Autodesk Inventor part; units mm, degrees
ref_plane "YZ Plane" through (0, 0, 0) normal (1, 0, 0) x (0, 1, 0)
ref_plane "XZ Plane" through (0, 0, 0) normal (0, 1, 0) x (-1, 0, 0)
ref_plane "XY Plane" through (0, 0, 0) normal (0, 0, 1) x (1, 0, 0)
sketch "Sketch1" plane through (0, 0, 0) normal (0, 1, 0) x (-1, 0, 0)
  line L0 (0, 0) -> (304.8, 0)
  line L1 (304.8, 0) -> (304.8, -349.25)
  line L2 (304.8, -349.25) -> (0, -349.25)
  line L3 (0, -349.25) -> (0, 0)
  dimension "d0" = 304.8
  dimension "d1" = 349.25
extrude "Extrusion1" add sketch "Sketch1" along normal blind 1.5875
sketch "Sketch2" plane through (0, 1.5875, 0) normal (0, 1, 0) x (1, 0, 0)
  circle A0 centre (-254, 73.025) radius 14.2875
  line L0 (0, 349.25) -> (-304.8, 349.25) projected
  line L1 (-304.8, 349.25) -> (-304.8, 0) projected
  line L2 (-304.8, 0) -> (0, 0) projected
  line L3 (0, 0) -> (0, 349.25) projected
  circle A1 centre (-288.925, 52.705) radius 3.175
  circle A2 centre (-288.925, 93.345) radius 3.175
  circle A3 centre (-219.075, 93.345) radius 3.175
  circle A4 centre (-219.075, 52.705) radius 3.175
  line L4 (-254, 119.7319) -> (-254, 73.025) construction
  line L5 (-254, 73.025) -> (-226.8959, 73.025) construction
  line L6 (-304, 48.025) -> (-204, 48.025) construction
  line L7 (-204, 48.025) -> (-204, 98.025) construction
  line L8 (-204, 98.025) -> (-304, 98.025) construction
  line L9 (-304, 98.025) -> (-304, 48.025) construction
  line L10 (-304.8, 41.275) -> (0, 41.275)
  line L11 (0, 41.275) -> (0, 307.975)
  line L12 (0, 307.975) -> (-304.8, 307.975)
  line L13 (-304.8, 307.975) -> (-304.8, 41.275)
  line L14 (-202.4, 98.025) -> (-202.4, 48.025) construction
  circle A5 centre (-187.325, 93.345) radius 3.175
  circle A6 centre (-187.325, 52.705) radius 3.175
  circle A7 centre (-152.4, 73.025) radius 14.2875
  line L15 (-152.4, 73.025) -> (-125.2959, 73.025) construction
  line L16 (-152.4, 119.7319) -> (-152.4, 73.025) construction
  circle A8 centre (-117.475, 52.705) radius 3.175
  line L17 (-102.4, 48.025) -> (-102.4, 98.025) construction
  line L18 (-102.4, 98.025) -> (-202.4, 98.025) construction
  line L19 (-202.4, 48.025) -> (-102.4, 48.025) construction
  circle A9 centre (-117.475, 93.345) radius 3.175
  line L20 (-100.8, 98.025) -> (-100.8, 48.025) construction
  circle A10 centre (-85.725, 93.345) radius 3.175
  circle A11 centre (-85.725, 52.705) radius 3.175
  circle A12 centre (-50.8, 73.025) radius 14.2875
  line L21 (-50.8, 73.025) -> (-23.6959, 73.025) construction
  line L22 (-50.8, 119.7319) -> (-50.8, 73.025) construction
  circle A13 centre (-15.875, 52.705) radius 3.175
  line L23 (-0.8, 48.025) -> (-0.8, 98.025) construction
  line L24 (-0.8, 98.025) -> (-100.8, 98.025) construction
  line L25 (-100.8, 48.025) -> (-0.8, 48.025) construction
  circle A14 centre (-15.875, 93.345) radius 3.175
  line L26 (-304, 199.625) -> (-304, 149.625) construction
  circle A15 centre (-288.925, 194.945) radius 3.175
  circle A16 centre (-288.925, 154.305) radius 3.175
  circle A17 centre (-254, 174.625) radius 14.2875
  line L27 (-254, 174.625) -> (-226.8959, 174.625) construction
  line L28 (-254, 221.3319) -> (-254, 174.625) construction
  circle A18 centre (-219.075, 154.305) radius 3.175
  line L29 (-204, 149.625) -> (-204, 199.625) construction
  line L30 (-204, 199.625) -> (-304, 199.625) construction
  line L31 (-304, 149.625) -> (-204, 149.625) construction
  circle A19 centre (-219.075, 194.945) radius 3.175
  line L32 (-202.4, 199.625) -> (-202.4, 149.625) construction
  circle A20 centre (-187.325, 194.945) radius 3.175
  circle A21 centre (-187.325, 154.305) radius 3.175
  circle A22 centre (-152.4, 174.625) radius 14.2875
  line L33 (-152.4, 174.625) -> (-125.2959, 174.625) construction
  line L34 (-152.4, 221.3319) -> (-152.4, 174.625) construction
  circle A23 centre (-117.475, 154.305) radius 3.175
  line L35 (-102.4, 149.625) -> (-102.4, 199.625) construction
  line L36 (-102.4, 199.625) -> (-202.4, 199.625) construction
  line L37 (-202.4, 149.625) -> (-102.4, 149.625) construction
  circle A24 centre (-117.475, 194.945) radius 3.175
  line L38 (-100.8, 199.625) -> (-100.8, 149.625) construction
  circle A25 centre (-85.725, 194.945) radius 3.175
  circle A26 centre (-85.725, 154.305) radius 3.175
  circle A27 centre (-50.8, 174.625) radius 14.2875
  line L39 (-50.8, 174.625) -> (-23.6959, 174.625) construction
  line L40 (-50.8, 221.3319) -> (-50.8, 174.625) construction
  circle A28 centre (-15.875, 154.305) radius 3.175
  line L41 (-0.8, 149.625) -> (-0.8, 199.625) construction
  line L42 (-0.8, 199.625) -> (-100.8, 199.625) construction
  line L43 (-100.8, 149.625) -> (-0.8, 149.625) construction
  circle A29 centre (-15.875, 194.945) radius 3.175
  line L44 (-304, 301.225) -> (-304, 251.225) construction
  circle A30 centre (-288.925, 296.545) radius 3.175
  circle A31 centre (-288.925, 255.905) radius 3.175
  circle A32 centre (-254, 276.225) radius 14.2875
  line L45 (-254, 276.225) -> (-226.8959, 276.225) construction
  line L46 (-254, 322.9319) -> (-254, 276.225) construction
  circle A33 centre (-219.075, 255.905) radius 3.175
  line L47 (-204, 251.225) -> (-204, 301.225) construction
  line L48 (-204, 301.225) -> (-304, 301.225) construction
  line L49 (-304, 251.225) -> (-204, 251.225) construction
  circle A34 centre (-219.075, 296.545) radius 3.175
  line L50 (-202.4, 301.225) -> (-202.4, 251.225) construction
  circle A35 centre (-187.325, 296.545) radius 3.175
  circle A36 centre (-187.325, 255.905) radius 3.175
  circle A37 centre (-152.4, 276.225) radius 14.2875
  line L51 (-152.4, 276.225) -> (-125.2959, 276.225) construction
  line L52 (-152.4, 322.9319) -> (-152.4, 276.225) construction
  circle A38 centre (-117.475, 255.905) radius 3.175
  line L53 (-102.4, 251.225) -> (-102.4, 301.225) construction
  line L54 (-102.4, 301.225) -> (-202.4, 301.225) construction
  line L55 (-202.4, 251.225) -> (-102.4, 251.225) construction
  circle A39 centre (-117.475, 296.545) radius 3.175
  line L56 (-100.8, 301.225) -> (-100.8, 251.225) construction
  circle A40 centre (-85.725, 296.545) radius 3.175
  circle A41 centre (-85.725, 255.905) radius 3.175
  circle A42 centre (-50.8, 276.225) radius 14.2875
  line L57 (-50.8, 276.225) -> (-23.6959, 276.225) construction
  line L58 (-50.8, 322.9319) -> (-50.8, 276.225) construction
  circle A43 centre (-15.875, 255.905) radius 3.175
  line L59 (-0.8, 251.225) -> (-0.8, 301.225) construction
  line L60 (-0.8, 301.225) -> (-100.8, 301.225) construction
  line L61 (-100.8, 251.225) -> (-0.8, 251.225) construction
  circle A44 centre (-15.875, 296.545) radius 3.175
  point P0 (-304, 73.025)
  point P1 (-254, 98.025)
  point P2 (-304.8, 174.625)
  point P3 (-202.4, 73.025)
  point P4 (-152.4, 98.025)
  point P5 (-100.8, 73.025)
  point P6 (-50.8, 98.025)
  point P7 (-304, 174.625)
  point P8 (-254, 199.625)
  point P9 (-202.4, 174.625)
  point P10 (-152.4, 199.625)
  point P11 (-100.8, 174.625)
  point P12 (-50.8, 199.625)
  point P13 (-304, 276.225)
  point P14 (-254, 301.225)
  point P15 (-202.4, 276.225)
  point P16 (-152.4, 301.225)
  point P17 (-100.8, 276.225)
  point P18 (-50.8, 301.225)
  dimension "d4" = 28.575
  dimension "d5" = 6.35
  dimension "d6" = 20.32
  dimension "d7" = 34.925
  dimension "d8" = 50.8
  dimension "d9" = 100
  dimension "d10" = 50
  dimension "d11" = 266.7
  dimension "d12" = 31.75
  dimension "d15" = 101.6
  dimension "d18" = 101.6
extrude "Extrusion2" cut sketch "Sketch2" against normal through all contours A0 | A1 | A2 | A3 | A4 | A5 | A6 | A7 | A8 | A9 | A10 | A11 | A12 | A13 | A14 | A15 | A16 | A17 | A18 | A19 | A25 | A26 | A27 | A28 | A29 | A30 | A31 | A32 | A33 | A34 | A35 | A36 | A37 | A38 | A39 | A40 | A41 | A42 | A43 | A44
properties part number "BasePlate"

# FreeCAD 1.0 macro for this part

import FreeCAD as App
import Part
import Sketcher
from FreeCAD import Vector
Q = App.Units.Quantity


def add_polygon(sketch, points):
    """Adds a closed chain of lines whose ends are joined by coincident constraints."""
    first, n = sketch.GeometryCount, len(points)
    for a, b in zip(points, points[1:] + points[:1]):
        sketch.addGeometry(Part.LineSegment(App.Vector(*a, 0), App.Vector(*b, 0)), False)
    for i in range(n):
        sketch.addConstraint(Sketcher.Constraint("Coincident", first + i, 2, first + (i + 1) % n, 1))

doc = App.newDocument("Part")
params = doc.addObject("Spreadsheet::Sheet", "Params")
for row, (alias, value) in enumerate([
    ("sketch1_width", "12 in"),
    ("sketch1_height", "13.75 in"),
    ("pad1_length", "0.0625 in"),
    ("sketch2_diameter", "0.25 in"),
    ("sketch2_diameter2", "1.125 in"),
], start=1):
    params.set(f"A{row}", alias)
    params.set(f"B{row}", "=" + value)
    params.setAlias(f"B{row}", alias)

body = doc.addObject("PartDesign::Body", "Body")

# Sketch on XZ plane
sketch1 = body.newObject("Sketcher::SketchObject", "Sketch")
sketch1.AttachmentSupport = (doc.getObject("XZ_Plane"), [""])
sketch1.MapMode = "FlatFace"
add_polygon(sketch1, [(-305, 0), (0, 0), (0, -349), (-305, -349)])  # lines 0-3
sketch1.addConstraint([
    Sketcher.Constraint("Horizontal", 0),
    Sketcher.Constraint("Vertical", 1),
    Sketcher.Constraint("Horizontal", 2),
    Sketcher.Constraint("Vertical", 3),
    Sketcher.Constraint("Coincident", 0, 2, -1, 1),
    Sketcher.Constraint("DistanceX", 0, 1, 0, 2, Q("12 in")),
    Sketcher.Constraint("DistanceY", 1, 2, 1, 1, Q("13.75 in")),
])
sketch1.setExpression("Constraints[9]", "Params.sketch1_width")
sketch1.setExpression("Constraints[10]", "Params.sketch1_height")
pad1 = body.newObject("PartDesign::Pad", "Pad")
pad1.Profile = sketch1
pad1.setExpression("Length", "Params.pad1_length")
pad1.Reversed = True

# Sketch on XZ plane
sketch2 = body.newObject("Sketcher::SketchObject", "Sketch001")
sketch2.AttachmentSupport = (doc.getObject("XZ_Plane"), [""])
sketch2.MapMode = "FlatFace"
sketch2.AttachmentOffset = App.Placement(Vector(0, 0, -0.0625 * 25.4), App.Rotation())
sketch2.addGeometry([
    Part.Circle(Vector(-254, -73, 0), Vector(0, 0, 1), 14.3),  # 0
    Part.Circle(Vector(-288.9, -52.7, 0), Vector(0, 0, 1), 3.2),  # 1
    Part.Circle(Vector(-288.9, -93.3, 0), Vector(0, 0, 1), 3.2),  # 2
    Part.Circle(Vector(-219.1, -93.3, 0), Vector(0, 0, 1), 3.2),  # 3
    Part.Circle(Vector(-219.1, -52.7, 0), Vector(0, 0, 1), 3.2),  # 4
    Part.Circle(Vector(-187.3, -93.3, 0), Vector(0, 0, 1), 3.2),  # 5
    Part.Circle(Vector(-187.3, -52.7, 0), Vector(0, 0, 1), 3.2),  # 6
    Part.Circle(Vector(-152.4, -73, 0), Vector(0, 0, 1), 14.3),  # 7
    Part.Circle(Vector(-117.5, -52.7, 0), Vector(0, 0, 1), 3.2),  # 8
    Part.Circle(Vector(-117.5, -93.3, 0), Vector(0, 0, 1), 3.2),  # 9
    Part.Circle(Vector(-85.7, -93.3, 0), Vector(0, 0, 1), 3.2),  # 10
    Part.Circle(Vector(-85.7, -52.7, 0), Vector(0, 0, 1), 3.2),  # 11
    Part.Circle(Vector(-50.8, -73, 0), Vector(0, 0, 1), 14.3),  # 12
    Part.Circle(Vector(-15.9, -52.7, 0), Vector(0, 0, 1), 3.2),  # 13
    Part.Circle(Vector(-15.9, -93.3, 0), Vector(0, 0, 1), 3.2),  # 14
    Part.Circle(Vector(-288.9, -194.9, 0), Vector(0, 0, 1), 3.2),  # 15
    Part.Circle(Vector(-288.9, -154.3, 0), Vector(0, 0, 1), 3.2),  # 16
    Part.Circle(Vector(-254, -174.6, 0), Vector(0, 0, 1), 14.3),  # 17
    Part.Circle(Vector(-219.1, -154.3, 0), Vector(0, 0, 1), 3.2),  # 18
    Part.Circle(Vector(-219.1, -194.9, 0), Vector(0, 0, 1), 3.2),  # 19
    Part.Circle(Vector(-85.7, -194.9, 0), Vector(0, 0, 1), 3.2),  # 20
    Part.Circle(Vector(-85.7, -154.3, 0), Vector(0, 0, 1), 3.2),  # 21
    Part.Circle(Vector(-50.8, -174.6, 0), Vector(0, 0, 1), 14.3),  # 22
    Part.Circle(Vector(-15.9, -154.3, 0), Vector(0, 0, 1), 3.2),  # 23
    Part.Circle(Vector(-15.9, -194.9, 0), Vector(0, 0, 1), 3.2),  # 24
    Part.Circle(Vector(-288.9, -296.5, 0), Vector(0, 0, 1), 3.2),  # 25
    Part.Circle(Vector(-288.9, -255.9, 0), Vector(0, 0, 1), 3.2),  # 26
    Part.Circle(Vector(-254, -276.2, 0), Vector(0, 0, 1), 14.3),  # 27
    Part.Circle(Vector(-219.1, -255.9, 0), Vector(0, 0, 1), 3.2),  # 28
    Part.Circle(Vector(-219.1, -296.5, 0), Vector(0, 0, 1), 3.2),  # 29
    Part.Circle(Vector(-187.3, -296.5, 0), Vector(0, 0, 1), 3.2),  # 30
    Part.Circle(Vector(-187.3, -255.9, 0), Vector(0, 0, 1), 3.2),  # 31
    Part.Circle(Vector(-152.4, -276.2, 0), Vector(0, 0, 1), 14.3),  # 32
    Part.Circle(Vector(-117.5, -255.9, 0), Vector(0, 0, 1), 3.2),  # 33
    Part.Circle(Vector(-117.5, -296.5, 0), Vector(0, 0, 1), 3.2),  # 34
    Part.Circle(Vector(-85.7, -296.5, 0), Vector(0, 0, 1), 3.2),  # 35
    Part.Circle(Vector(-85.7, -255.9, 0), Vector(0, 0, 1), 3.2),  # 36
    Part.Circle(Vector(-50.8, -276.2, 0), Vector(0, 0, 1), 14.3),  # 37
    Part.Circle(Vector(-15.9, -255.9, 0), Vector(0, 0, 1), 3.2),  # 38
    Part.Circle(Vector(-15.9, -296.5, 0), Vector(0, 0, 1), 3.2),  # 39
], False)
sketch2.addConstraint([
    Sketcher.Constraint("Equal", 1, 2),
    Sketcher.Constraint("Equal", 2, 3),
    Sketcher.Constraint("Equal", 3, 4),
    Sketcher.Constraint("Equal", 4, 5),
    Sketcher.Constraint("Equal", 5, 6),
    Sketcher.Constraint("Equal", 0, 7),
    Sketcher.Constraint("Equal", 6, 8),
    Sketcher.Constraint("Equal", 8, 9),
    Sketcher.Constraint("Equal", 9, 10),
    Sketcher.Constraint("Equal", 10, 11),
    Sketcher.Constraint("Equal", 7, 12),
    Sketcher.Constraint("Equal", 11, 13),
    Sketcher.Constraint("Equal", 13, 14),
    Sketcher.Constraint("Equal", 14, 15),
    Sketcher.Constraint("Equal", 15, 16),
    Sketcher.Constraint("Equal", 12, 17),
    Sketcher.Constraint("Equal", 16, 18),
    Sketcher.Constraint("Equal", 18, 19),
    Sketcher.Constraint("Equal", 19, 20),
    Sketcher.Constraint("Equal", 20, 21),
    Sketcher.Constraint("Equal", 17, 22),
    Sketcher.Constraint("Equal", 21, 23),
    Sketcher.Constraint("Equal", 23, 24),
    Sketcher.Constraint("Equal", 24, 25),
    Sketcher.Constraint("Equal", 25, 26),
    Sketcher.Constraint("Equal", 22, 27),
    Sketcher.Constraint("Equal", 26, 28),
    Sketcher.Constraint("Equal", 28, 29),
    Sketcher.Constraint("Equal", 29, 30),
    Sketcher.Constraint("Equal", 30, 31),
    Sketcher.Constraint("Equal", 27, 32),
    Sketcher.Constraint("Equal", 31, 33),
    Sketcher.Constraint("Equal", 33, 34),
    Sketcher.Constraint("Equal", 34, 35),
    Sketcher.Constraint("Equal", 35, 36),
    Sketcher.Constraint("Equal", 32, 37),
    Sketcher.Constraint("Equal", 36, 38),
    Sketcher.Constraint("Equal", 38, 39),
    Sketcher.Constraint("Horizontal", 2, 3, 3, 3),
    Sketcher.Constraint("Horizontal", 1, 3, 4, 3),
    Sketcher.Constraint("Horizontal", 3, 3, 5, 3),
    Sketcher.Constraint("Horizontal", 4, 3, 6, 3),
    Sketcher.Constraint("Horizontal", 0, 3, 7, 3),
    Sketcher.Constraint("Horizontal", 6, 3, 8, 3),
    Sketcher.Constraint("Horizontal", 5, 3, 9, 3),
    Sketcher.Constraint("Horizontal", 9, 3, 10, 3),
    Sketcher.Constraint("Horizontal", 8, 3, 11, 3),
    Sketcher.Constraint("Horizontal", 7, 3, 12, 3),
    Sketcher.Constraint("Horizontal", 11, 3, 13, 3),
    Sketcher.Constraint("Horizontal", 10, 3, 14, 3),
    Sketcher.Constraint("Horizontal", 16, 3, 18, 3),
    Sketcher.Constraint("Horizontal", 15, 3, 19, 3),
    Sketcher.Constraint("Horizontal", 19, 3, 20, 3),
    Sketcher.Constraint("Horizontal", 18, 3, 21, 3),
    Sketcher.Constraint("Horizontal", 17, 3, 22, 3),
    Sketcher.Constraint("Horizontal", 21, 3, 23, 3),
    Sketcher.Constraint("Horizontal", 20, 3, 24, 3),
    Sketcher.Constraint("Horizontal", 26, 3, 28, 3),
    Sketcher.Constraint("Horizontal", 25, 3, 29, 3),
    Sketcher.Constraint("Horizontal", 29, 3, 30, 3),
    Sketcher.Constraint("Horizontal", 28, 3, 31, 3),
    Sketcher.Constraint("Horizontal", 27, 3, 32, 3),
    Sketcher.Constraint("Horizontal", 31, 3, 33, 3),
    Sketcher.Constraint("Horizontal", 30, 3, 34, 3),
    Sketcher.Constraint("Horizontal", 34, 3, 35, 3),
    Sketcher.Constraint("Horizontal", 33, 3, 36, 3),
    Sketcher.Constraint("Horizontal", 32, 3, 37, 3),
    Sketcher.Constraint("Horizontal", 36, 3, 38, 3),
    Sketcher.Constraint("Horizontal", 35, 3, 39, 3),
    Sketcher.Constraint("Vertical", 1, 3, 2, 3),
    Sketcher.Constraint("Vertical", 3, 3, 4, 3),
    Sketcher.Constraint("Vertical", 5, 3, 6, 3),
    Sketcher.Constraint("Vertical", 8, 3, 9, 3),
    Sketcher.Constraint("Vertical", 10, 3, 11, 3),
    Sketcher.Constraint("Vertical", 13, 3, 14, 3),
    Sketcher.Constraint("Vertical", 2, 3, 15, 3),
    Sketcher.Constraint("Vertical", 15, 3, 16, 3),
    Sketcher.Constraint("Vertical", 0, 3, 17, 3),
    Sketcher.Constraint("Vertical", 4, 3, 18, 3),
    Sketcher.Constraint("Vertical", 18, 3, 19, 3),
    Sketcher.Constraint("Vertical", 11, 3, 20, 3),
    Sketcher.Constraint("Vertical", 20, 3, 21, 3),
    Sketcher.Constraint("Vertical", 12, 3, 22, 3),
    Sketcher.Constraint("Vertical", 14, 3, 23, 3),
    Sketcher.Constraint("Vertical", 23, 3, 24, 3),
    Sketcher.Constraint("Vertical", 16, 3, 25, 3),
    Sketcher.Constraint("Vertical", 25, 3, 26, 3),
    Sketcher.Constraint("Vertical", 17, 3, 27, 3),
    Sketcher.Constraint("Vertical", 19, 3, 28, 3),
    Sketcher.Constraint("Vertical", 28, 3, 29, 3),
    Sketcher.Constraint("Vertical", 6, 3, 30, 3),
    Sketcher.Constraint("Vertical", 30, 3, 31, 3),
    Sketcher.Constraint("Vertical", 7, 3, 32, 3),
    Sketcher.Constraint("Vertical", 9, 3, 33, 3),
    Sketcher.Constraint("Vertical", 33, 3, 34, 3),
    Sketcher.Constraint("Vertical", 21, 3, 35, 3),
    Sketcher.Constraint("Vertical", 35, 3, 36, 3),
    Sketcher.Constraint("Vertical", 22, 3, 37, 3),
    Sketcher.Constraint("Vertical", 24, 3, 38, 3),
    Sketcher.Constraint("Vertical", 38, 3, 39, 3),
    Sketcher.Constraint("Diameter", 1, Q("0.25 in")),
    Sketcher.Constraint("Diameter", 0, Q("1.125 in")),
    Sketcher.Constraint("DistanceX", 12, 3, -1, 1, Q("2 in")),
    Sketcher.Constraint("DistanceX", 2, 3, 5, 3, Q("4 in")),
    Sketcher.Constraint("DistanceX", 0, 3, 7, 3, Q("4 in")),
    Sketcher.Constraint("DistanceX", 4, 3, 8, 3, Q("4 in")),
    Sketcher.Constraint("DistanceX", 5, 3, 10, 3, Q("4 in")),
    Sketcher.Constraint("DistanceX", 7, 3, 12, 3, Q("4 in")),
    Sketcher.Constraint("DistanceX", 8, 3, 13, 3, Q("4 in")),
    Sketcher.Constraint("DistanceY", 15, 3, 2, 3, Q("4 in")),
    Sketcher.Constraint("DistanceY", 16, 3, 1, 3, Q("4 in")),
    Sketcher.Constraint("DistanceY", 17, 3, 0, 3, Q("4 in")),
    Sketcher.Constraint("DistanceY", 25, 3, 15, 3, Q("4 in")),
    Sketcher.Constraint("DistanceY", 26, 3, 16, 3, Q("4 in")),
    Sketcher.Constraint("DistanceY", 27, 3, 17, 3, Q("4 in")),
    Sketcher.Constraint("DistanceY", 0, 3, 1, 3, Q("0.8 in")),
    Sketcher.Constraint("DistanceY", 2, 3, 0, 3, Q("0.8 in")),
    Sketcher.Constraint("DistanceX", 3, 3, 5, 3, Q("1.25 in")),
    Sketcher.Constraint("DistanceX", 1, 3, 0, 3, Q("1.375 in")),
    Sketcher.Constraint("DistanceY", 0, 3, -1, 1, Q("2.875 in")),
])
sketch2.setExpression("Constraints[100]", "Params.sketch2_diameter")
sketch2.setExpression("Constraints[101]", "Params.sketch2_diameter2")
pocket1 = body.newObject("PartDesign::Pocket", "Pocket")
pocket1.Profile = sketch2
pocket1.Type = "ThroughAll"
pocket1.Reversed = True

doc.recompute()
